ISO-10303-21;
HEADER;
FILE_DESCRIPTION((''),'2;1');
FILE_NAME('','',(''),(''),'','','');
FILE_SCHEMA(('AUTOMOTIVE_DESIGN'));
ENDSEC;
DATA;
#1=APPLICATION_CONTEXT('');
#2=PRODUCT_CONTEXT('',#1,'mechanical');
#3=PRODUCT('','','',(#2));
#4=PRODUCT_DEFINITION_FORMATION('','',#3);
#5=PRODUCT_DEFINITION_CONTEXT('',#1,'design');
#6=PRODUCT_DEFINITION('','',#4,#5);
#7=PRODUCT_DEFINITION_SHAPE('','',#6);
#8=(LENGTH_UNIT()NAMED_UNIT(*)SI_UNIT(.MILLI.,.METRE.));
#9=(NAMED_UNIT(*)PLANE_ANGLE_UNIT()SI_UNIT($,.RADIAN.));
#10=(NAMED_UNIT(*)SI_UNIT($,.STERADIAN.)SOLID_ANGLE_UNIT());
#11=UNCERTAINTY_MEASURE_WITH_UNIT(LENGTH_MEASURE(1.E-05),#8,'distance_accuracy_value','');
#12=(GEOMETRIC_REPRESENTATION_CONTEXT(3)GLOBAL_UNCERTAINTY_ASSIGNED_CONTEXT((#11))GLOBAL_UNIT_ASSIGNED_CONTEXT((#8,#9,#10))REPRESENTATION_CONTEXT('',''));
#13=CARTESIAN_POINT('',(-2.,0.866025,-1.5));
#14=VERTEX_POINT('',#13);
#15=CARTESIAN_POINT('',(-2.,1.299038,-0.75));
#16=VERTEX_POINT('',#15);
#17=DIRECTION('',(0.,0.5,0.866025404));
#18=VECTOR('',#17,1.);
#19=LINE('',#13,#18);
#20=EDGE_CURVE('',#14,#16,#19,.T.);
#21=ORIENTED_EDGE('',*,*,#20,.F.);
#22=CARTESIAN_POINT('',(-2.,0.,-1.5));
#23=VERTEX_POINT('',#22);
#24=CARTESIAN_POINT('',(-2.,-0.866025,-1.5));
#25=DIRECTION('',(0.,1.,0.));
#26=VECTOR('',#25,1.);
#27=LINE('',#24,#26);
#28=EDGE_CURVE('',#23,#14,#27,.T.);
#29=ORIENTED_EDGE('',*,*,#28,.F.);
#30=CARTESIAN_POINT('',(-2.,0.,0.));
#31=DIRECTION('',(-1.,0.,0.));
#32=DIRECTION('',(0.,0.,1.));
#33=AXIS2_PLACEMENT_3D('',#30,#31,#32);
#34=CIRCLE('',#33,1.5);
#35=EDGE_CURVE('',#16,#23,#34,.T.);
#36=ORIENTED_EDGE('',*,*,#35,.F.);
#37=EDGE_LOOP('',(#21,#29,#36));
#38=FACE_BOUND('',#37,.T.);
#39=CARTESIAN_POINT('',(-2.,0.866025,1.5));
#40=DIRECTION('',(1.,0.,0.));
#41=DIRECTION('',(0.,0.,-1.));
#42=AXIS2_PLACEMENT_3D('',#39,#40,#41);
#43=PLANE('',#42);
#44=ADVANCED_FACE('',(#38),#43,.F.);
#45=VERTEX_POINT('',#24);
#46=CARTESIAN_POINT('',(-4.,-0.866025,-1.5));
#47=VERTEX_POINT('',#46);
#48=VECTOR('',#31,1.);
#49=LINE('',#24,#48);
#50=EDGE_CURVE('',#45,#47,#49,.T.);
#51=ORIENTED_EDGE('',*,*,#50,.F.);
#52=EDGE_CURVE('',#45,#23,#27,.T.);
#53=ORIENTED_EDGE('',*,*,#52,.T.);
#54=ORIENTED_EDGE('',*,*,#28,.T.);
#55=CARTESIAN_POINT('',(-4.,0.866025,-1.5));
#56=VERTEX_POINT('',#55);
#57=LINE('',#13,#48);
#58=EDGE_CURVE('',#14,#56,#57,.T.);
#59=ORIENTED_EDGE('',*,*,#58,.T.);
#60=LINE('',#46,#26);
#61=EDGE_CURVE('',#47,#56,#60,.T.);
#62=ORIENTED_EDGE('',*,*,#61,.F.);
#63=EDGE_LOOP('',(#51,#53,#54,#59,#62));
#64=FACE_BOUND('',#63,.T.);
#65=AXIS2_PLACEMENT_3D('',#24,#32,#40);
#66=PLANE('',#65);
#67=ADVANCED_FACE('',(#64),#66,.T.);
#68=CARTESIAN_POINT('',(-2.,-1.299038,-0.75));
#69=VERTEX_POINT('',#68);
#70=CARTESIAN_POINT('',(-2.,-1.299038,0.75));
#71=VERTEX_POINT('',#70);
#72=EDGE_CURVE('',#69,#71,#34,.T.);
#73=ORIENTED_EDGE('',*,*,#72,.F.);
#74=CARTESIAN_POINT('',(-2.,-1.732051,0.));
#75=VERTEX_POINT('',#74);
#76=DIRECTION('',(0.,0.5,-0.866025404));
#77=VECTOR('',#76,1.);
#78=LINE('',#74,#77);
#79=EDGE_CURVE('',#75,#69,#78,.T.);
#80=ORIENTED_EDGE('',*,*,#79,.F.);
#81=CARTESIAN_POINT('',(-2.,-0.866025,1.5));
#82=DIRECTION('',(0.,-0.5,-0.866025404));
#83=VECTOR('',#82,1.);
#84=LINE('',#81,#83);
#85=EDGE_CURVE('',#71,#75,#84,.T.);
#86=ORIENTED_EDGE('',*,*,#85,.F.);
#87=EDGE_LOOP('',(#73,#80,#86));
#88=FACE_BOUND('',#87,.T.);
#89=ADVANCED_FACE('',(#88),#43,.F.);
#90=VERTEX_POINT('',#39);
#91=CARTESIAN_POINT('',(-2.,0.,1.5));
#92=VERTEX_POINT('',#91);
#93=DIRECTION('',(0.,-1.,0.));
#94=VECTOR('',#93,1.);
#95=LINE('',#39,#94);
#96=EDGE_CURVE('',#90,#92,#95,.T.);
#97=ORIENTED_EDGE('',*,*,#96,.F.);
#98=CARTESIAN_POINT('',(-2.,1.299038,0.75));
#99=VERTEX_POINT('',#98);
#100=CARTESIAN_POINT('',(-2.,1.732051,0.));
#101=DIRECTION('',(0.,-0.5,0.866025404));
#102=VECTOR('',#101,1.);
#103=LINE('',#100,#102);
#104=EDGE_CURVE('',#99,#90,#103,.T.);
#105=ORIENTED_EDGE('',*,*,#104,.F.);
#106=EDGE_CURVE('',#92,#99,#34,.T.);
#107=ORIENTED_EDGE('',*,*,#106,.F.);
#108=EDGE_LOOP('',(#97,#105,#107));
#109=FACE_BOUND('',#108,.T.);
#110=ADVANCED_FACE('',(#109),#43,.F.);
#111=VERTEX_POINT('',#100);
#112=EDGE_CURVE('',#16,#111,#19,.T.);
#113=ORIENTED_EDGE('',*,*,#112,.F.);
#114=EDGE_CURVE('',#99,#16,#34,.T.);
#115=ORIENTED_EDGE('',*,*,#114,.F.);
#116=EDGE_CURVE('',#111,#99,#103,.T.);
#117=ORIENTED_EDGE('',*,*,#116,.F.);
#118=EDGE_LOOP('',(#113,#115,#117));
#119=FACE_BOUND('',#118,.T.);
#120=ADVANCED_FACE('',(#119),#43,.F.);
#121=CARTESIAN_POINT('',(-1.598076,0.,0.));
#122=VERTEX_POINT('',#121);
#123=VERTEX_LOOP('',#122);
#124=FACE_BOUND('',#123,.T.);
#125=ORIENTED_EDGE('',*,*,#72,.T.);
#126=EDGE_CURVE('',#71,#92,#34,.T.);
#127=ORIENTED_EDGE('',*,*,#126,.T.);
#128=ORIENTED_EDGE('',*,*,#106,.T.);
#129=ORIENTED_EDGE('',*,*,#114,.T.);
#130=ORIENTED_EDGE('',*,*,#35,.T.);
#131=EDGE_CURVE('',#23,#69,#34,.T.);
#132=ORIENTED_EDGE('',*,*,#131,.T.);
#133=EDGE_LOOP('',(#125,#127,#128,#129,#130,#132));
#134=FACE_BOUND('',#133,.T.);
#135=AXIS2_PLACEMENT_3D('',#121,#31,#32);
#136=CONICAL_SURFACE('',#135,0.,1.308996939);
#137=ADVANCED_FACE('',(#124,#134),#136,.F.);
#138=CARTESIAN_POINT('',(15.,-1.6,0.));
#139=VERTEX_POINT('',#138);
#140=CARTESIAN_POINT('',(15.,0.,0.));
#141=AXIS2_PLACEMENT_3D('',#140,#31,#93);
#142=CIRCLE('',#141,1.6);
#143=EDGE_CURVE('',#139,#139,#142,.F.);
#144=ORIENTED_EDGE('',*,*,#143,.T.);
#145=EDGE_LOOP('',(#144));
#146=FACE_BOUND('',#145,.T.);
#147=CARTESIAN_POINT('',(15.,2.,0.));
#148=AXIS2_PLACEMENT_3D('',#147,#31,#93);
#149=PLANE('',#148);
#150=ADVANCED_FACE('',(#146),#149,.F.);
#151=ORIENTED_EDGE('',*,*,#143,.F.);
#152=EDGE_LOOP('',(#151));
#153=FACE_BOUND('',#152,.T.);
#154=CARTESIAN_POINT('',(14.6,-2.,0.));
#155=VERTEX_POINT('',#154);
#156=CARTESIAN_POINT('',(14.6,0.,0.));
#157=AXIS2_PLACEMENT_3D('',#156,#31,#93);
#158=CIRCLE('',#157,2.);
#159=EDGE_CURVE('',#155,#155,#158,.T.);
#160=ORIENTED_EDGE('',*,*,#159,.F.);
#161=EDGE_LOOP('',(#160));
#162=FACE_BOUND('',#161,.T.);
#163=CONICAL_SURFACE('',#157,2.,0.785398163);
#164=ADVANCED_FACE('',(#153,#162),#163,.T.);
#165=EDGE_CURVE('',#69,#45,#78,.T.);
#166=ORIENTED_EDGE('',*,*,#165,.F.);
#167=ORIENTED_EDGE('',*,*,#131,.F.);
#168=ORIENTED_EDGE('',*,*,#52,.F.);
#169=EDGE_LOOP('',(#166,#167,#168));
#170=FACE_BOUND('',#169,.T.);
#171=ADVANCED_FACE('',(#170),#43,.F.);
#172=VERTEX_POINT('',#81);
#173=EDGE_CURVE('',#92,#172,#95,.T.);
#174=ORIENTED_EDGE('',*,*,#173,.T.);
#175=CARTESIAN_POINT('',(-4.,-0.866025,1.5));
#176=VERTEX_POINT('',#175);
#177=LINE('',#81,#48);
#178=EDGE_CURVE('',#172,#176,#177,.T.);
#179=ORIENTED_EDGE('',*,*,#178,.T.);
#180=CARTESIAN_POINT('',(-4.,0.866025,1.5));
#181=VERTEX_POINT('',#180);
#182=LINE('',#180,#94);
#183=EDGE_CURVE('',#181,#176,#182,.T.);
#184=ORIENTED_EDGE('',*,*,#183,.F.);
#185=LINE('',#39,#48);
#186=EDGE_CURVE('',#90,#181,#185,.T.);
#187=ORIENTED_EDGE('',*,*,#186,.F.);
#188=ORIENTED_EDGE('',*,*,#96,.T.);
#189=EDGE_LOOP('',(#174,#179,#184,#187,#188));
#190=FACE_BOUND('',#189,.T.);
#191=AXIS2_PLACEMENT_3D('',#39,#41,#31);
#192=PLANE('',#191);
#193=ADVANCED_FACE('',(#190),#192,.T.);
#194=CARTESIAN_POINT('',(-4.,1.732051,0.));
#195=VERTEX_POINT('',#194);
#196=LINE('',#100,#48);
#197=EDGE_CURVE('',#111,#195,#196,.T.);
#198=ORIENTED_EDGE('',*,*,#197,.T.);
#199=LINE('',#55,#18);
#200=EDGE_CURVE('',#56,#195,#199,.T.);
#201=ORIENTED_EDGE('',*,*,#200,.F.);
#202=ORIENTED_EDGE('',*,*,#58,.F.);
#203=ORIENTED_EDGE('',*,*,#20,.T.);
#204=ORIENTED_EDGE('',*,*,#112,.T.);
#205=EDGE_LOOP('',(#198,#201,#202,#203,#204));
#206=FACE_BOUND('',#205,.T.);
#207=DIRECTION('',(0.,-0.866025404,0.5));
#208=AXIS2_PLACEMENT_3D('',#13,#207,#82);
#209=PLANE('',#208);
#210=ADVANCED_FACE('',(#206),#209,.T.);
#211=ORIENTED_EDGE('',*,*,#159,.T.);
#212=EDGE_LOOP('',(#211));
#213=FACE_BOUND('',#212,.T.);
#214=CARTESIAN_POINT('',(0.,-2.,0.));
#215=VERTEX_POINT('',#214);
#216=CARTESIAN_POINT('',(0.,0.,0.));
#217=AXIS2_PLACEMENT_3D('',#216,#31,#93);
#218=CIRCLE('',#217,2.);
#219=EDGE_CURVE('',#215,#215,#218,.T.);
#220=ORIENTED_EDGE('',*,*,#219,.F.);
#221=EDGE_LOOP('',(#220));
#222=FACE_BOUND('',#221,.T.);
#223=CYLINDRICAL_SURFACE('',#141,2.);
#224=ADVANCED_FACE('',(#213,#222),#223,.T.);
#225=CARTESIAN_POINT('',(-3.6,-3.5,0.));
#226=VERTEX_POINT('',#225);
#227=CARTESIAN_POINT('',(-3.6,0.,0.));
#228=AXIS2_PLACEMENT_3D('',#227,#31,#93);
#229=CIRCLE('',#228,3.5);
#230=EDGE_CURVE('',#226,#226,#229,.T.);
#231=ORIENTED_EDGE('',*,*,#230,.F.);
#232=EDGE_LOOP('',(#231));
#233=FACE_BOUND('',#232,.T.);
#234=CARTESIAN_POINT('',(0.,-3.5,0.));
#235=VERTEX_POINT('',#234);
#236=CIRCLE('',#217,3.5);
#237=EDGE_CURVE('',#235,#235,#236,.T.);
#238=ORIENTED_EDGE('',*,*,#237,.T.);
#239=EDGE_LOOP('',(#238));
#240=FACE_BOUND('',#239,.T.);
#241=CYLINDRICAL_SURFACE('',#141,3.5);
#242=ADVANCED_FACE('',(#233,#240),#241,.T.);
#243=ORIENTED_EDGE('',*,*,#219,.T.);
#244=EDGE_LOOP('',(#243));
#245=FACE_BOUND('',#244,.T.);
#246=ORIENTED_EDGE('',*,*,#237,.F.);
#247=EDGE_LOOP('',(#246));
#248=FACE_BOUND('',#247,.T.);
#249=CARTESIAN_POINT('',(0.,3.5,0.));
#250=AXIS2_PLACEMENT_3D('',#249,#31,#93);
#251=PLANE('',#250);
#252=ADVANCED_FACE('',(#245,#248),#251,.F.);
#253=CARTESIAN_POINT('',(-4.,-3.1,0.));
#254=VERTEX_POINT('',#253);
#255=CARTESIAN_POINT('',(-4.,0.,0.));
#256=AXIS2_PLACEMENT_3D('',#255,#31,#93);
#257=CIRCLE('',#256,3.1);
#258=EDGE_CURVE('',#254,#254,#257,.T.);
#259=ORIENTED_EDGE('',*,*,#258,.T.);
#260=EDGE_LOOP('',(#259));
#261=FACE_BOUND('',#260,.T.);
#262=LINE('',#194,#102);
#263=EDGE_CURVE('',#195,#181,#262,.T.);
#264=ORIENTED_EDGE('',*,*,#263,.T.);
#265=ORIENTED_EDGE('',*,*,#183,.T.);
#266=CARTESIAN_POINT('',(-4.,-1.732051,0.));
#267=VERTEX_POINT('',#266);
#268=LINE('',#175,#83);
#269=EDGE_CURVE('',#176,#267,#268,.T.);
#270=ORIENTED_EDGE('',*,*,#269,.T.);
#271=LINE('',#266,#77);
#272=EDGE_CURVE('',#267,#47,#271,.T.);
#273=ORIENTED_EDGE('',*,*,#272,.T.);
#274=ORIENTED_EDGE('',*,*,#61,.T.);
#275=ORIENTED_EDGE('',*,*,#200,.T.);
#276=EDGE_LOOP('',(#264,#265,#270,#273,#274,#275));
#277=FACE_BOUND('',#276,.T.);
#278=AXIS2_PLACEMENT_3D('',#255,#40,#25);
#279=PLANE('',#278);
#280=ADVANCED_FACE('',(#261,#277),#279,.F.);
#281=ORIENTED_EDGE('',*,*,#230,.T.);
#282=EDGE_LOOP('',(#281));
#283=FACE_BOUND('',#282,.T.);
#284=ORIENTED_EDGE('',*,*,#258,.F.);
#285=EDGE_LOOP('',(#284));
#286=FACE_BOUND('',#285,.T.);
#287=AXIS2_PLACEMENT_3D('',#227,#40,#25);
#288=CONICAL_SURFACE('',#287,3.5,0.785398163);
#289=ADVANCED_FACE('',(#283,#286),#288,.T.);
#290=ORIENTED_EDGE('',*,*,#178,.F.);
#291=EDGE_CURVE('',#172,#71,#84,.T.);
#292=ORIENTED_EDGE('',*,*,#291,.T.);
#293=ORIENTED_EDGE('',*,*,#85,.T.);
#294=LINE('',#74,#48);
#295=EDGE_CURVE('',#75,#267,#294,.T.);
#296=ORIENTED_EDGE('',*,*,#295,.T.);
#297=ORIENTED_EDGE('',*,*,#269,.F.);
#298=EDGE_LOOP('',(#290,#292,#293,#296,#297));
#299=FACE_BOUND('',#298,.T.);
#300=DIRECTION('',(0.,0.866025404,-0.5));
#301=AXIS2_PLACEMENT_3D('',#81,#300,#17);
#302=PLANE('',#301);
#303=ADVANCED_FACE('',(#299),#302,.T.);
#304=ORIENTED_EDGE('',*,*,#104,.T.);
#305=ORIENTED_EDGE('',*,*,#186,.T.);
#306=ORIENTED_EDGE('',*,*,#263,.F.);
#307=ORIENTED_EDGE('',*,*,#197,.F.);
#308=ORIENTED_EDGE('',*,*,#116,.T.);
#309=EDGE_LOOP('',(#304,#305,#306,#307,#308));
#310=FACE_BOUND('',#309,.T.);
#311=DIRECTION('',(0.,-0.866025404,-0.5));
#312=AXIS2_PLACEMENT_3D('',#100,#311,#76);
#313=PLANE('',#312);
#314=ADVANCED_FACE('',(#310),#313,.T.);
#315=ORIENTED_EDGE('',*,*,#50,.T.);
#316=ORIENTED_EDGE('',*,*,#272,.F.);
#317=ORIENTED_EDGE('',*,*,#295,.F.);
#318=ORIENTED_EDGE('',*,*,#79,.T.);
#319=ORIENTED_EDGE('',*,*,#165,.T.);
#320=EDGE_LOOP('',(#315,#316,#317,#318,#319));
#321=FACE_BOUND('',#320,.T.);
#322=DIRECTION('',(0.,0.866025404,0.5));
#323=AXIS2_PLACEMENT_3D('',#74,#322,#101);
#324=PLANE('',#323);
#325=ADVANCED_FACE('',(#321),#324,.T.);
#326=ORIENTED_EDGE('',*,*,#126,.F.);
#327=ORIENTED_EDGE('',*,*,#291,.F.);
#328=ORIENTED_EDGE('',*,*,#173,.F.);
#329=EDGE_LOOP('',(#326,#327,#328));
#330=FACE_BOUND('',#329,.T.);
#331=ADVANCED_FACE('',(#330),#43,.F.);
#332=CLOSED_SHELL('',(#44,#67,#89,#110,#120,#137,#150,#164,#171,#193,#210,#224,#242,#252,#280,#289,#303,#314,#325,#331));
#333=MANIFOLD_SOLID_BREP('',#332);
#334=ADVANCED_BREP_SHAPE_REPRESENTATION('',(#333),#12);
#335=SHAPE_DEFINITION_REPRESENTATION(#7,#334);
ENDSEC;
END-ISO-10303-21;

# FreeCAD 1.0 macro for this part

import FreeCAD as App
import Part
import Sketcher
Q = App.Units.Quantity


def edges_at(feature, points):
    """Names of the edges that pass closest to the given points."""
    edges = feature.Shape.Edges
    near = lambda p: min(range(len(edges)), key=lambda i: edges[i].distToShape(Part.Vertex(*p))[0])
    return sorted({f"Edge{near(p) + 1}" for p in points})


def add_polygon(sketch, points):
    """Adds a closed chain of lines whose ends are joined by coincident constraints."""
    first, n = sketch.GeometryCount, len(points)
    for a, b in zip(points, points[1:] + points[:1]):
        sketch.addGeometry(Part.LineSegment(App.Vector(*a, 0), App.Vector(*b, 0)), False)
    for i in range(n):
        sketch.addConstraint(Sketcher.Constraint("Coincident", first + i, 2, first + (i + 1) % n, 1))

doc = App.newDocument("Part")
body = doc.addObject("PartDesign::Body", "Body")

# Sketch on XY plane
sketch1 = body.newObject("Sketcher::SketchObject", "Sketch")
sketch1.AttachmentSupport = (doc.getObject("XY_Plane"), [""])
sketch1.MapMode = "FlatFace"
add_polygon(sketch1, [(-4, 3.1), (-4, 0), (15, 0), (15, 2), (0, 2), (0, 3.5), (-3.6, 3.5)])  # lines 0-6
sketch1.addConstraint([
    Sketcher.Constraint("Vertical", 0),
    Sketcher.Constraint("Horizontal", 1),
    Sketcher.Constraint("Vertical", 2),
    Sketcher.Constraint("Horizontal", 3),
    Sketcher.Constraint("Vertical", 4),
    Sketcher.Constraint("Horizontal", 5),
    Sketcher.Constraint("PointOnObject", 0, 2, -1),
    Sketcher.Constraint("PointOnObject", 3, 2, -2),
    Sketcher.Constraint("DistanceX", 1, 1, 1, 2, 19.0),
    Sketcher.Constraint("DistanceX", 3, 2, 3, 1, 15.0),
    Sketcher.Constraint("DistanceY", 2, 1, 2, 2, 2.0),
    Sketcher.Constraint("Angle", 6, Q("-135 deg")),
    Sketcher.Constraint("DistanceX", 5, 2, 5, 1, 3.6),
    Sketcher.Constraint("DistanceY", 0, 2, 0, 1, 3.1),
])
revolution = body.newObject("PartDesign::Revolution", "Revolution")
revolution.Profile = sketch1
revolution.ReferenceAxis = (sketch1, ["H_Axis"])
revolution.Angle = 360
doc.recompute()

chamfer = body.newObject("PartDesign::Chamfer", "Chamfer")
chamfer.Base = (revolution, edges_at(revolution, [(15, 2, 0)]))
chamfer.Size = 0.4

# Sketch on XY plane
sketch2 = body.newObject("Sketcher::SketchObject", "Sketch001")
sketch2.AttachmentSupport = (doc.getObject("XY_Plane"), [""])
sketch2.MapMode = "FlatFace"
add_polygon(sketch2, [(-4, 1.5), (-4, 0), (-1.598076, 0), (-2, 1.5)])  # lines 0-3
sketch2.addConstraint([
    Sketcher.Constraint("Vertical", 0),
    Sketcher.Constraint("Horizontal", 1),
    Sketcher.Constraint("Horizontal", 3),
    Sketcher.Constraint("PointOnObject", 0, 2, -1),
    Sketcher.Constraint("DistanceX", 3, 2, 3, 1, 2.0),
    Sketcher.Constraint("Angle", 2, Q("105 deg")),
    Sketcher.Constraint("DistanceY", 0, 2, 0, 1, 1.5),
    Sketcher.Constraint("DistanceX", 0, 2, -1, 1, 4.0),
])
groove = body.newObject("PartDesign::Groove", "Groove")
groove.Profile = sketch2
groove.ReferenceAxis = (sketch2, ["H_Axis"])
groove.Angle = 360

# Sketch on YZ plane
sketch3 = body.newObject("Sketcher::SketchObject", "Sketch002")
sketch3.AttachmentSupport = (doc.getObject("YZ_Plane"), [""])
sketch3.MapMode = "FlatFace"
sketch3.AttachmentOffset = App.Placement(App.Vector(0, 0, -4), App.Rotation())
add_polygon(sketch3, [(0.866025, 1.5), (-0.866025, 1.5), (-1.732051, 0), (-0.866025, -1.5), (0.866025, -1.5), (1.732051, 0)])  # lines 0-5
sketch3.addConstraint([
    Sketcher.Constraint("Horizontal", 0),
    Sketcher.Constraint("Horizontal", 3),
    Sketcher.Constraint("Symmetric", 0, 2, 3, 2, -1, 1),
    Sketcher.Constraint("Symmetric", 1, 2, 4, 2, -1, 1),
    Sketcher.Constraint("PointOnObject", 1, 2, -1),
    Sketcher.Constraint("Parallel", 2, 5),
    Sketcher.Constraint("Vertical", 0, 2, 2, 2),
    Sketcher.Constraint("Angle", 1, Q("-120 deg")),
    Sketcher.Constraint("DistanceY", 2, 2, 0, 2, 3.0),
    Sketcher.Constraint("DistanceX", 0, 2, 0, 1, 1.732051),
])
pocket1 = body.newObject("PartDesign::Pocket", "Pocket")
pocket1.Profile = sketch3
pocket1.Length = 2
pocket1.Reversed = True

doc.recompute()
